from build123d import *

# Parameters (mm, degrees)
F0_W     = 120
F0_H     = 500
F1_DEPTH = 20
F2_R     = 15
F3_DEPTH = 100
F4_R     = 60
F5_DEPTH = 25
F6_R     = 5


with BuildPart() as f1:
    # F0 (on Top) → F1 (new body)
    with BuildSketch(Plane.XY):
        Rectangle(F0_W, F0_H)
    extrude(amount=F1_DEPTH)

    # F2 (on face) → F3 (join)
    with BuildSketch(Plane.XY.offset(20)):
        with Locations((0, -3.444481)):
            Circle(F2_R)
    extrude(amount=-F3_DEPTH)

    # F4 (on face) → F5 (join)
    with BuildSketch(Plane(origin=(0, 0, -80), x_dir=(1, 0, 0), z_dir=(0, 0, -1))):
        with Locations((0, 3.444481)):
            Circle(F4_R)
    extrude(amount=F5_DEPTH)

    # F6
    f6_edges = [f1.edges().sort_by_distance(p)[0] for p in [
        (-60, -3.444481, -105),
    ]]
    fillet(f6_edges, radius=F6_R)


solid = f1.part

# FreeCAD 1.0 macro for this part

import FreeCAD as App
import Part
import Sketcher
Q = App.Units.Quantity


def edges_at(feature, points):
    """Names of the edges that pass closest to the given points."""
    edges = feature.Shape.Edges
    near = lambda p: min(range(len(edges)), key=lambda i: edges[i].distToShape(Part.Vertex(*p))[0])
    return sorted({f"Edge{near(p) + 1}" for p in points})

doc = App.newDocument("Part")
body = doc.addObject("PartDesign::Body", "Body")

sketch1 = body.newObject("Sketcher::SketchObject", "Sketch")
sketch1.AttachmentSupport = (doc.getObject("XY_Plane"), [""])
sketch1.MapMode = "FlatFace"
sketch1.addGeometry([
    Part.LineSegment(App.Vector(-60, 250, 0), App.Vector(-60, -250, 0)),
    Part.LineSegment(App.Vector(-60, -250, 0), App.Vector(60, -250, 0)),
    Part.LineSegment(App.Vector(60, -250, 0), App.Vector(60, 250, 0)),
    Part.LineSegment(App.Vector(60, 250, 0), App.Vector(-60, 250, 0)),
], False)
sketch1.addConstraint([
    Sketcher.Constraint("Coincident", 0, 2, 1, 1),
    Sketcher.Constraint("Coincident", 1, 2, 2, 1),
    Sketcher.Constraint("Coincident", 2, 2, 3, 1),
    Sketcher.Constraint("Coincident", 3, 2, 0, 1),
    Sketcher.Constraint("Vertical", 0),
    Sketcher.Constraint("Horizontal", 1),
    Sketcher.Constraint("Vertical", 2),
    Sketcher.Constraint("Horizontal", 3),
    Sketcher.Constraint("Symmetric", 0, 2, 2, 2, -1, 1),
    Sketcher.Constraint("DistanceX", 1, 1, 1, 2, Q("120 mm")),
    Sketcher.Constraint("DistanceY", 0, 2, 0, 1, Q("500 mm")),
])
pad1 = body.newObject("PartDesign::Pad", "Pad")
pad1.Profile = sketch1
pad1.Length = 20

sketch2 = body.newObject("Sketcher::SketchObject", "Sketch001")
sketch2.AttachmentSupport = (doc.getObject("XY_Plane"), [""])
sketch2.MapMode = "FlatFace"
sketch2.AttachmentOffset = App.Placement(App.Vector(0, 0, 20), App.Rotation())
sketch2.addGeometry(Part.Circle(App.Vector(0, -3, 0), App.Vector(0, 0, 1), 15), False)
sketch2.addConstraint([
    Sketcher.Constraint("PointOnObject", 0, 3, -2),
    Sketcher.Constraint("Diameter", 0, Q("30 mm")),
    Sketcher.Constraint("DistanceY", 0, 3, -1, 1, Q("3.444481 mm")),
])
pad2 = body.newObject("PartDesign::Pad", "Pad001")
pad2.Profile = sketch2
pad2.Length = 100
pad2.Reversed = True

sketch3 = body.newObject("Sketcher::SketchObject", "Sketch002")
sketch3.AttachmentSupport = (doc.getObject("XY_Plane"), [""])
sketch3.MapMode = "FlatFace"
sketch3.AttachmentOffset = App.Placement(App.Vector(0, 0, -80), App.Rotation())
sketch3.addGeometry(Part.Circle(App.Vector(0, -3, 0), App.Vector(0, 0, 1), 60), False)
sketch3.addConstraint([
    Sketcher.Constraint("PointOnObject", 0, 3, -2),
    Sketcher.Constraint("Diameter", 0, Q("120 mm")),
    Sketcher.Constraint("DistanceY", 0, 3, -1, 1, Q("3.444481 mm")),
])
pad3 = body.newObject("PartDesign::Pad", "Pad002")
pad3.Profile = sketch3
pad3.Length = 25
pad3.Reversed = True
doc.recompute()

fillet = body.newObject("PartDesign::Fillet", "Fillet")
fillet.Base = (pad3, edges_at(pad3, [(-60, -3.444, -105)]))
fillet.Radius = 5

doc.recompute()
